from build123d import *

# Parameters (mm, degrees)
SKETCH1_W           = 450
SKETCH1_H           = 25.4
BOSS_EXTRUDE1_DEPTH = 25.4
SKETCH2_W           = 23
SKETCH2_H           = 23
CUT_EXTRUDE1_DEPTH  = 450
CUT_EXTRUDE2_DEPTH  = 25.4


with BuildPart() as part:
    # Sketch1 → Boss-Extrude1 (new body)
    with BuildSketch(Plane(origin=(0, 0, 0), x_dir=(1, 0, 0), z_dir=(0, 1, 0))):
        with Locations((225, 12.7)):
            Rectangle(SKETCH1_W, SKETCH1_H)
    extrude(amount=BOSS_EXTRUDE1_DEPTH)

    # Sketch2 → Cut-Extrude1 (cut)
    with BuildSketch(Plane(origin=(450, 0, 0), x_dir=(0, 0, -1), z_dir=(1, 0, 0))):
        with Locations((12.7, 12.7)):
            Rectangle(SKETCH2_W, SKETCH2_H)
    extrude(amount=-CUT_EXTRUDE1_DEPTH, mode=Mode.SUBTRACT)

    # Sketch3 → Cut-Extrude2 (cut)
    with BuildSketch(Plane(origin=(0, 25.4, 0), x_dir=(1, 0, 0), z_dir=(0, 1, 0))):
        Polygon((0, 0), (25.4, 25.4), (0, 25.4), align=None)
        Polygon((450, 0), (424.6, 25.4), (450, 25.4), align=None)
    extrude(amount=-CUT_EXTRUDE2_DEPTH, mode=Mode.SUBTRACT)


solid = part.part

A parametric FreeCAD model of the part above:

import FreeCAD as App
import Part
import Sketcher
from FreeCAD import Vector


def add_polygon(sketch, points):
    """Adds a closed chain of lines whose ends are joined by coincident constraints."""
    first, n = sketch.GeometryCount, len(points)
    for a, b in zip(points, points[1:] + points[:1]):
        sketch.addGeometry(Part.LineSegment(App.Vector(*a, 0), App.Vector(*b, 0)), False)
    for i in range(n):
        sketch.addConstraint(Sketcher.Constraint("Coincident", first + i, 2, first + (i + 1) % n, 1))

doc = App.newDocument("Part")
body = doc.addObject("PartDesign::Body", "Body")

# Sketch on XZ plane
sketch1 = body.newObject("Sketcher::SketchObject", "Sketch")
sketch1.AttachmentSupport = (doc.getObject("XZ_Plane"), [""])
sketch1.MapMode = "FlatFace"
add_polygon(sketch1, [(0, -25), (0, 0), (450, 0), (450, -25)])  # lines 0-3
sketch1.addConstraint([
    Sketcher.Constraint("Vertical", 0),
    Sketcher.Constraint("Horizontal", 1),
    Sketcher.Constraint("Vertical", 2),
    Sketcher.Constraint("Horizontal", 3),
    Sketcher.Constraint("Coincident", 0, 2, -1, 1),
    Sketcher.Constraint("DistanceX", 1, 1, 1, 2, 450.0),
    Sketcher.Constraint("DistanceY", 0, 1, 0, 2, 25.4),
])
pad1 = body.newObject("PartDesign::Pad", "Pad")
pad1.Profile = sketch1
pad1.Length = 25.4
pad1.Reversed = True

# Sketch on YZ plane
sketch2 = body.newObject("Sketcher::SketchObject", "Sketch001")
sketch2.AttachmentSupport = (doc.getObject("YZ_Plane"), [""])
sketch2.MapMode = "FlatFace"
sketch2.AttachmentOffset = App.Placement(Vector(0, 0, 450), App.Rotation())
add_polygon(sketch2, [(24, -1), (1, -1), (1, -24), (24, -24)])  # lines 0-3
sketch2.addConstraint([
    Sketcher.Constraint("Horizontal", 0),
    Sketcher.Constraint("Vertical", 1),
    Sketcher.Constraint("Horizontal", 2),
    Sketcher.Constraint("Vertical", 3),
    Sketcher.Constraint("Equal", 2, 1),
    Sketcher.Constraint("DistanceX", 0, 2, 0, 1, 23.0),
    Sketcher.Constraint("DistanceX", -1, 1, 0, 2, 1.2),
    Sketcher.Constraint("DistanceY", 0, 2, -1, 1, 1.2),
])
pocket1 = body.newObject("PartDesign::Pocket", "Pocket")
pocket1.Profile = sketch2
pocket1.Length = 450

# Sketch on XZ plane
sketch3 = body.newObject("Sketcher::SketchObject", "Sketch002")
sketch3.AttachmentSupport = (doc.getObject("XZ_Plane"), [""])
sketch3.MapMode = "FlatFace"
sketch3.AttachmentOffset = App.Placement(Vector(0, 0, -25.4), App.Rotation())
add_polygon(sketch3, [(0, 0), (25, -25), (0, -25)])  # lines 0-2
add_polygon(sketch3, [(425, -25), (450, 0), (450, -25)])  # lines 3-5
sketch3.addConstraint([
    Sketcher.Constraint("Horizontal", 1),
    Sketcher.Constraint("Vertical", 2),
    Sketcher.Constraint("Vertical", 4),
    Sketcher.Constraint("Horizontal", 5),
    Sketcher.Constraint("Coincident", 2, 2, -1, 1),
    Sketcher.Constraint("PointOnObject", 3, 2, -1),
    Sketcher.Constraint("Perpendicular", 0, 3),
    Sketcher.Constraint("Horizontal", 1, 2, 4, 2),
    Sketcher.Constraint("Equal", 1, 5),
    Sketcher.Constraint("DistanceX", 1, 2, 1, 1, 25.4),
    Sketcher.Constraint("DistanceX", -1, 1, 3, 2, 450.0),
])
pocket2 = body.newObject("PartDesign::Pocket", "Pocket001")
pocket2.Profile = sketch3
pocket2.Length = 25.4
pocket2.Reversed = True

doc.recompute()
